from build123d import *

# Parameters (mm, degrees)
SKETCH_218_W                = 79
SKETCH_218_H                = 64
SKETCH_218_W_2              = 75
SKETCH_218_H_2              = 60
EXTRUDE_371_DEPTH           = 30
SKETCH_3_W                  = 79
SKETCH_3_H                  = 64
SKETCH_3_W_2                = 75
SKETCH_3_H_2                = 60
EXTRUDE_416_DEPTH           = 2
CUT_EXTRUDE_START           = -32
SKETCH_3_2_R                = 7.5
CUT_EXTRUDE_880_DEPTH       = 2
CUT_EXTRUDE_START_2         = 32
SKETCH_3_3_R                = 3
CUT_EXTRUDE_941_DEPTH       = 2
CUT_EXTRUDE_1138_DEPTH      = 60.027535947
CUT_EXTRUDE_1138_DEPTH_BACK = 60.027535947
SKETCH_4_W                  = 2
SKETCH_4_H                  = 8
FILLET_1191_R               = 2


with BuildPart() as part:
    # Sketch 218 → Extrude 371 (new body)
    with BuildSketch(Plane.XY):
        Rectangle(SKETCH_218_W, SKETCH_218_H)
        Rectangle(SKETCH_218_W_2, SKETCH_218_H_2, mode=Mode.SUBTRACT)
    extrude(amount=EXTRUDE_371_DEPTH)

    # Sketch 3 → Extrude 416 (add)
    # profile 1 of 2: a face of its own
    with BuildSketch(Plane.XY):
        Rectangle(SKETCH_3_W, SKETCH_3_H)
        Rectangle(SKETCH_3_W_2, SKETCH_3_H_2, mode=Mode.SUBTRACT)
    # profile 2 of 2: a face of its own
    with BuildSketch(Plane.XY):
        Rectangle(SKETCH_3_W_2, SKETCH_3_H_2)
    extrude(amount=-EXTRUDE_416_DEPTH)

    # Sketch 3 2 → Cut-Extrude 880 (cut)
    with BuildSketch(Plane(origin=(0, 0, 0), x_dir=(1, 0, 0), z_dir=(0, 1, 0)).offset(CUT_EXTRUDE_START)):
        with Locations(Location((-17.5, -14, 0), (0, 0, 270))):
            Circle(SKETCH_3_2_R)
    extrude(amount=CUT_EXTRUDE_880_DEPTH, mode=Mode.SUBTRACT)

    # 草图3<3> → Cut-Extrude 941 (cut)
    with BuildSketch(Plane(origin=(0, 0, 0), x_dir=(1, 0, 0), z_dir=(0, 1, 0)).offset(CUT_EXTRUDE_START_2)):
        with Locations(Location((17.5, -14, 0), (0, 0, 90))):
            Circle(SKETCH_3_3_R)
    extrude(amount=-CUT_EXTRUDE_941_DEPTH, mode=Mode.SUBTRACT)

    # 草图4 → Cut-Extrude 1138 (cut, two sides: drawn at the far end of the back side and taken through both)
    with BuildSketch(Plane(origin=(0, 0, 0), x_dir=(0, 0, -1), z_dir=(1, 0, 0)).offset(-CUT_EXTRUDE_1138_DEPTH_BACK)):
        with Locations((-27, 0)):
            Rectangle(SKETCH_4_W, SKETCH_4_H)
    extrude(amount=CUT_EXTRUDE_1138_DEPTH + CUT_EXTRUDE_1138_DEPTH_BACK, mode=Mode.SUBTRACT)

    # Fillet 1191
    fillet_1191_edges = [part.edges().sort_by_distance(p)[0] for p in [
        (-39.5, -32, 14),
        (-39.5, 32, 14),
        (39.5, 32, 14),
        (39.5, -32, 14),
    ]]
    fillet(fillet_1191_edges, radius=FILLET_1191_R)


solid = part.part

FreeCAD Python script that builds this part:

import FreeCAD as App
import Part
import Sketcher
from FreeCAD import Vector
Q = App.Units.Quantity


def edges_at(feature, points):
    """Names of the edges that pass closest to the given points."""
    edges = feature.Shape.Edges
    near = lambda p: min(range(len(edges)), key=lambda i: edges[i].distToShape(Part.Vertex(*p))[0])
    return sorted({f"Edge{near(p) + 1}" for p in points})


def add_polygon(sketch, points):
    """Adds a closed chain of lines whose ends are joined by coincident constraints."""
    first, n = sketch.GeometryCount, len(points)
    for a, b in zip(points, points[1:] + points[:1]):
        sketch.addGeometry(Part.LineSegment(App.Vector(*a, 0), App.Vector(*b, 0)), False)
    for i in range(n):
        sketch.addConstraint(Sketcher.Constraint("Coincident", first + i, 2, first + (i + 1) % n, 1))

doc = App.newDocument("Part")
body = doc.addObject("PartDesign::Body", "Body")

sketch1 = doc.addObject("Sketcher::SketchObject", "Sketch")
body.addObject(sketch1)
sketch1.AttachmentSupport = (doc.XY_Plane, [""])
sketch1.MapMode = "FlatFace"
add_polygon(sketch1, [(-40, 32), (-40, -32), (40, -32), (40, 32)])
add_polygon(sketch1, [(38, -30), (-38, -30), (-38, 30), (38, 30)])
sketch1.addConstraint(Sketcher.Constraint("Vertical", 0))
sketch1.addConstraint(Sketcher.Constraint("Horizontal", 1))
sketch1.addConstraint(Sketcher.Constraint("Vertical", 2))
sketch1.addConstraint(Sketcher.Constraint("Horizontal", 3))
sketch1.addConstraint(Sketcher.Constraint("Horizontal", 4))
sketch1.addConstraint(Sketcher.Constraint("Vertical", 5))
sketch1.addConstraint(Sketcher.Constraint("Horizontal", 6))
sketch1.addConstraint(Sketcher.Constraint("Vertical", 7))
sketch1.addConstraint(Sketcher.Constraint("Symmetric", 0, 2, 2, 2, -1, 1))
sketch1.addConstraint(Sketcher.Constraint("Symmetric", 4, 2, 6, 2, -1, 1))
sketch1.addConstraint(Sketcher.Constraint("DistanceX", 1, 1, 1, 2, Q("79 mm")))
sketch1.addConstraint(Sketcher.Constraint("DistanceX", 4, 2, 4, 1, Q("75 mm")))
sketch1.addConstraint(Sketcher.Constraint("DistanceY", 0, 2, 0, 1, Q("64 mm")))
sketch1.addConstraint(Sketcher.Constraint("DistanceY", 5, 1, 5, 2, Q("60 mm")))
pad1 = doc.addObject("PartDesign::Pad", "Pad")
body.addObject(pad1)
pad1.Profile = sketch1
pad1.Length = 30

sketch2 = doc.addObject("Sketcher::SketchObject", "Sketch001")
body.addObject(sketch2)
sketch2.AttachmentSupport = (doc.XY_Plane, [""])
sketch2.MapMode = "FlatFace"
add_polygon(sketch2, [(-40, 32), (-40, -32), (40, -32), (40, 32)])
sketch2.addConstraint(Sketcher.Constraint("Vertical", 0))
sketch2.addConstraint(Sketcher.Constraint("Horizontal", 1))
sketch2.addConstraint(Sketcher.Constraint("Vertical", 2))
sketch2.addConstraint(Sketcher.Constraint("Horizontal", 3))
sketch2.addConstraint(Sketcher.Constraint("Symmetric", 0, 2, 2, 2, -1, 1))
sketch2.addConstraint(Sketcher.Constraint("DistanceX", 1, 1, 1, 2, Q("79 mm")))
sketch2.addConstraint(Sketcher.Constraint("DistanceY", 0, 2, 0, 1, Q("64 mm")))
pad2 = doc.addObject("PartDesign::Pad", "Pad001")
body.addObject(pad2)
pad2.Profile = sketch2
pad2.Length = 2
pad2.Reversed = True

sketch3 = doc.addObject("Sketcher::SketchObject", "Sketch002")
body.addObject(sketch3)
sketch3.AttachmentSupport = (doc.XZ_Plane, [""])
sketch3.MapMode = "FlatFace"
sketch3.AttachmentOffset = App.Placement(Vector(0, 0, 32), App.Rotation())
sketch3.addGeometry(Part.Circle(Vector(-18, 14, 0), Vector(0, 0, 1), 8), False)
sketch3.addConstraint(Sketcher.Constraint("Diameter", 0, Q("15 mm")))
sketch3.addConstraint(Sketcher.Constraint("DistanceY", -1, 1, 0, 3, Q("14 mm")))
sketch3.addConstraint(Sketcher.Constraint("DistanceX", 0, 3, -1, 1, Q("17.5 mm")))
pocket1 = doc.addObject("PartDesign::Pocket", "Pocket")
body.addObject(pocket1)
pocket1.Profile = sketch3
pocket1.Length = 2

sketch4 = doc.addObject("Sketcher::SketchObject", "Sketch003")
body.addObject(sketch4)
sketch4.AttachmentSupport = (doc.XZ_Plane, [""])
sketch4.MapMode = "FlatFace"
sketch4.AttachmentOffset = App.Placement(Vector(0, 0, -32), App.Rotation())
sketch4.addGeometry(Part.Circle(Vector(17.5, 14, 0), Vector(0, 0, 1), 3), False)
sketch4.addConstraint(Sketcher.Constraint("Diameter", 0, Q("6 mm")))
sketch4.addConstraint(Sketcher.Constraint("DistanceY", -1, 1, 0, 3, Q("14 mm")))
sketch4.addConstraint(Sketcher.Constraint("DistanceX", -1, 1, 0, 3, Q("17.5 mm")))
pocket2 = doc.addObject("PartDesign::Pocket", "Pocket001")
body.addObject(pocket2)
pocket2.Profile = sketch4
pocket2.Length = 2
pocket2.Reversed = True

sketch5 = doc.addObject("Sketcher::SketchObject", "Sketch004")
body.addObject(sketch5)
sketch5.AttachmentSupport = (doc.YZ_Plane, [""])
sketch5.MapMode = "FlatFace"
add_polygon(sketch5, [(4, 28), (-4, 28), (-4, 26), (4, 26)])
sketch5.addConstraint(Sketcher.Constraint("Horizontal", 0))
sketch5.addConstraint(Sketcher.Constraint("Vertical", 1))
sketch5.addConstraint(Sketcher.Constraint("Horizontal", 2))
sketch5.addConstraint(Sketcher.Constraint("Vertical", 3))
sketch5.addConstraint(Sketcher.Constraint("DistanceX", 0, 2, 0, 1, Q("8 mm")))
sketch5.addConstraint(Sketcher.Constraint("DistanceY", 1, 2, 1, 1, Q("2 mm")))
sketch5.addConstraint(Sketcher.Constraint("DistanceX", 0, 2, -1, 1, Q("4 mm")))
sketch5.addConstraint(Sketcher.Constraint("DistanceY", -1, 1, 0, 2, Q("28 mm")))
pocket3 = doc.addObject("PartDesign::Pocket", "Pocket002")
body.addObject(pocket3)
pocket3.Profile = sketch5
pocket3.Type = "ThroughAll"
pocket3.Midplane = True
doc.recompute()

fillet = doc.addObject("PartDesign::Fillet", "Fillet")
body.addObject(fillet)
fillet.Base = (pocket3, edges_at(pocket3, [
    (-39.5, -32, 14),
    (-39.5, 32, 14),
    (39.5, 32, 14),
    (39.5, -32, 14),
]))
fillet.Radius = 2

doc.recompute()
